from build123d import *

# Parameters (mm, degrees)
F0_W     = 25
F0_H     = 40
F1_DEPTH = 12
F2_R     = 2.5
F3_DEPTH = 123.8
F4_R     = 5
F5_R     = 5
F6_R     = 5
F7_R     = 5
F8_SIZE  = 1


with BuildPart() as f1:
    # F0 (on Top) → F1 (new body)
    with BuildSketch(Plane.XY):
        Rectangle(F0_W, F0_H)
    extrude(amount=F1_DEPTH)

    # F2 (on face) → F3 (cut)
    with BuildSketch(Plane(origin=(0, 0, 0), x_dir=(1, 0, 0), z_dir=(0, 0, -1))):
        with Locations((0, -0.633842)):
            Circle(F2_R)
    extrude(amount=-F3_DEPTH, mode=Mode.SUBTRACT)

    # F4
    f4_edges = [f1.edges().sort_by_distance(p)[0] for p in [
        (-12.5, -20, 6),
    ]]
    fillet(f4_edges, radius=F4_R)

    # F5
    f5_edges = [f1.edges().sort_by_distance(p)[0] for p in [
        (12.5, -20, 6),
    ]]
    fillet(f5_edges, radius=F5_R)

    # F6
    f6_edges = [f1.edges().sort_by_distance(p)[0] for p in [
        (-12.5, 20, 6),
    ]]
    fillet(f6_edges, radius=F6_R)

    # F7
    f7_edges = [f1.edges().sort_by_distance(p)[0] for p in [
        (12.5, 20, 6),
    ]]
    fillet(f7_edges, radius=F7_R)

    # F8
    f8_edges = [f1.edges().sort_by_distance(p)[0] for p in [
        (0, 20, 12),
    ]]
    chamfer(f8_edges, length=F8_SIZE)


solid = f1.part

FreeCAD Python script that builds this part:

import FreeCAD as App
import Part
import Sketcher
from FreeCAD import Vector


def edges_at(feature, points):
    """Names of the edges that pass closest to the given points."""
    edges = feature.Shape.Edges
    near = lambda p: min(range(len(edges)), key=lambda i: edges[i].distToShape(Part.Vertex(*p))[0])
    return sorted({f"Edge{near(p) + 1}" for p in points})

doc = App.newDocument("Part")
body = doc.addObject("PartDesign::Body", "Body")

sketch1 = body.newObject("Sketcher::SketchObject", "Sketch")
sketch1.AttachmentSupport = (doc.getObject("XY_Plane"), [""])
sketch1.MapMode = "FlatFace"
sketch1.addGeometry(Part.LineSegment(Vector(-12, 20, 0), Vector(-12, -20, 0)), False)
sketch1.addGeometry(Part.LineSegment(Vector(-12, -20, 0), Vector(12, -20, 0)), False)
sketch1.addGeometry(Part.LineSegment(Vector(12, -20, 0), Vector(12, 20, 0)), False)
sketch1.addGeometry(Part.LineSegment(Vector(12, 20, 0), Vector(-12, 20, 0)), False)
sketch1.addConstraint(Sketcher.Constraint("Coincident", 0, 2, 1, 1))
sketch1.addConstraint(Sketcher.Constraint("Coincident", 1, 2, 2, 1))
sketch1.addConstraint(Sketcher.Constraint("Coincident", 2, 2, 3, 1))
sketch1.addConstraint(Sketcher.Constraint("Coincident", 3, 2, 0, 1))
sketch1.addConstraint(Sketcher.Constraint("Vertical", 0))
sketch1.addConstraint(Sketcher.Constraint("Horizontal", 1))
sketch1.addConstraint(Sketcher.Constraint("Vertical", 2))
sketch1.addConstraint(Sketcher.Constraint("Horizontal", 3))
sketch1.addConstraint(Sketcher.Constraint("Symmetric", 0, 2, 2, 2, -1, 1))
sketch1.addConstraint(Sketcher.Constraint("DistanceX", 1, 1, 1, 2, 25.0))
sketch1.addConstraint(Sketcher.Constraint("DistanceY", 0, 2, 0, 1, 40.0))
pad1 = body.newObject("PartDesign::Pad", "Pad")
pad1.Profile = sketch1
pad1.Length = 12

sketch2 = body.newObject("Sketcher::SketchObject", "Sketch001")
sketch2.AttachmentSupport = (doc.getObject("XY_Plane"), [""])
sketch2.MapMode = "FlatFace"
sketch2.addGeometry(Part.Circle(Vector(0, 0.6, 0), Vector(0, 0, 1), 2.5), False)
sketch2.addConstraint(Sketcher.Constraint("PointOnObject", 0, 3, -2))
sketch2.addConstraint(Sketcher.Constraint("Diameter", 0, 5.0))
sketch2.addConstraint(Sketcher.Constraint("DistanceY", -1, 1, 0, 3, 0.633842))
pocket1 = body.newObject("PartDesign::Pocket", "Pocket")
pocket1.Profile = sketch2
pocket1.Length = 123.8
pocket1.Reversed = True
doc.recompute()

fillet = body.newObject("PartDesign::Fillet", "Fillet")
fillet.Base = (pocket1, edges_at(pocket1, [(-12.5, -20, 6)]))
fillet.Radius = 5
doc.recompute()

fillet2 = body.newObject("PartDesign::Fillet", "Fillet001")
fillet2.Base = (fillet, edges_at(fillet, [(12.5, -20, 6)]))
fillet2.Radius = 5
doc.recompute()

fillet3 = body.newObject("PartDesign::Fillet", "Fillet002")
fillet3.Base = (fillet2, edges_at(fillet2, [(-12.5, 20, 6)]))
fillet3.Radius = 5
doc.recompute()

fillet4 = body.newObject("PartDesign::Fillet", "Fillet003")
fillet4.Base = (fillet3, edges_at(fillet3, [(12.5, 20, 6)]))
fillet4.Radius = 5
doc.recompute()

chamfer = body.newObject("PartDesign::Chamfer", "Chamfer")
chamfer.Base = (fillet4, edges_at(fillet4, [(0, 20, 12)]))
chamfer.Size = 1

doc.recompute()
